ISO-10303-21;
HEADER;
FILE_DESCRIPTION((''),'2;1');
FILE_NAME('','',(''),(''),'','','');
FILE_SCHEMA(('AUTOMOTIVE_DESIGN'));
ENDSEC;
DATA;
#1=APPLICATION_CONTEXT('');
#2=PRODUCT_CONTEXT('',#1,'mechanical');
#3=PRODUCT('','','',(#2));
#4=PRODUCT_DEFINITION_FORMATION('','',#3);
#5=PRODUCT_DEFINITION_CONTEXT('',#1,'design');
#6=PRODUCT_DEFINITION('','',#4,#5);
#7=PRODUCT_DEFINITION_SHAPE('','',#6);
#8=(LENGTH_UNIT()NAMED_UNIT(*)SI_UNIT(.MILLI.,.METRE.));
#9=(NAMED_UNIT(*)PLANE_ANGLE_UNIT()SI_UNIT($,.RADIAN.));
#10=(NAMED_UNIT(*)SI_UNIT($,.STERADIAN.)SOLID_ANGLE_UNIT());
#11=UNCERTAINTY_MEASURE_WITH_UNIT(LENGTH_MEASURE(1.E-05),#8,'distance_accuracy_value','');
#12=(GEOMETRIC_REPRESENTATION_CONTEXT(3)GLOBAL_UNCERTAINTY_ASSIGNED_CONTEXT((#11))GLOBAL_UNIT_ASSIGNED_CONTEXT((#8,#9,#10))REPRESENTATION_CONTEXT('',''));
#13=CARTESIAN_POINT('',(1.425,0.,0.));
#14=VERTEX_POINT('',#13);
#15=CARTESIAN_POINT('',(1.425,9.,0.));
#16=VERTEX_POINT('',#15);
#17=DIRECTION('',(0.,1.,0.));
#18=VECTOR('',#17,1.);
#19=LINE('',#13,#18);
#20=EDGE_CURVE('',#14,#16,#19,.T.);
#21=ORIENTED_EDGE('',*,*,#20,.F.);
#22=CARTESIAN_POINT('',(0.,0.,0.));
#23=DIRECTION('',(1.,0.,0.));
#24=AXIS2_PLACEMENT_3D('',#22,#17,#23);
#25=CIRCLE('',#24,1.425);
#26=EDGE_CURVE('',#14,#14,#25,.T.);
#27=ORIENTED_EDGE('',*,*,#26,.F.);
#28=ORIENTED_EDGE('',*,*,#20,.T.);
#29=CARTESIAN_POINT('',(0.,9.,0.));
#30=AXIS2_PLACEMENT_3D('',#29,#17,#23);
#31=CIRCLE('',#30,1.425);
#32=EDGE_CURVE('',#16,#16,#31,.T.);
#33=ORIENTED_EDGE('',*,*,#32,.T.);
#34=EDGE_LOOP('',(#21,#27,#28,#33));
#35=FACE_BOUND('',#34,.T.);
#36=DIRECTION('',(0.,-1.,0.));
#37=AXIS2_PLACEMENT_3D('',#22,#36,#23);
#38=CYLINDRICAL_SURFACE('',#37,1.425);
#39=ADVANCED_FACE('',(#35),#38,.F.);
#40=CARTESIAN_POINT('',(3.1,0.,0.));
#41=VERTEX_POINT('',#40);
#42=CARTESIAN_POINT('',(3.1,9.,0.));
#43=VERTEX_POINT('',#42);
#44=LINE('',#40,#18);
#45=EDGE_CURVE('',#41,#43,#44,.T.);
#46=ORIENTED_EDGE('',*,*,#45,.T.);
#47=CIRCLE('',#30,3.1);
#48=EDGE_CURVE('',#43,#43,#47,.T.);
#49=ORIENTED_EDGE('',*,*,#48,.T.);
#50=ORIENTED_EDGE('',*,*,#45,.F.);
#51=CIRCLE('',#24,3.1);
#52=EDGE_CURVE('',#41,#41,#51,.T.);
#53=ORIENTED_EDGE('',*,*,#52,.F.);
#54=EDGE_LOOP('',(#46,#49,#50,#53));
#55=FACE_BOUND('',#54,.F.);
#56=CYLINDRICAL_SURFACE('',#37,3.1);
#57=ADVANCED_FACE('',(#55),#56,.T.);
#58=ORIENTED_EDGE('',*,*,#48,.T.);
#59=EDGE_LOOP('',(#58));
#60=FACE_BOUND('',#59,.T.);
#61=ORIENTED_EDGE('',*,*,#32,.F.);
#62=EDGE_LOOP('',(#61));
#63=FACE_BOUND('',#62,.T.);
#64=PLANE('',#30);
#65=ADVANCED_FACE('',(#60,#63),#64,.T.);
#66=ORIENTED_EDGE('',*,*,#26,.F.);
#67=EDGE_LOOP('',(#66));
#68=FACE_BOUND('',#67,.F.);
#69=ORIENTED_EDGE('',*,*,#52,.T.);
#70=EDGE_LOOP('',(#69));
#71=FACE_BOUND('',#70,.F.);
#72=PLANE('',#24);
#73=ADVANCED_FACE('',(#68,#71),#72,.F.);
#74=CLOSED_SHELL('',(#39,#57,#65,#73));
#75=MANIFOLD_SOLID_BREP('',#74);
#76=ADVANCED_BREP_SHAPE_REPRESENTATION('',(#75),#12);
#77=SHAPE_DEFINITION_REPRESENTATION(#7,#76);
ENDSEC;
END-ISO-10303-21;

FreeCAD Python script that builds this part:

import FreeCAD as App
import Part
import Sketcher
from FreeCAD import Vector
Q = App.Units.Quantity

doc = App.newDocument("Part")
params = doc.addObject("Spreadsheet::Sheet", "Params")
for row, (alias, value) in enumerate([
    ("sketch1_diameter", "6.2 mm"),
    ("sketch1_diameter2", "2.85 mm"),
    ("pad1_length", "9 mm"),
], start=1):
    params.set(f"A{row}", alias)
    params.set(f"B{row}", "=" + value)
    params.setAlias(f"B{row}", alias)

body = doc.addObject("PartDesign::Body", "Body")

# Sketch on XZ plane
sketch1 = body.newObject("Sketcher::SketchObject", "Sketch")
sketch1.AttachmentSupport = (doc.getObject("XZ_Plane"), [""])
sketch1.MapMode = "FlatFace"
sketch1.addGeometry(Part.Circle(Vector(0, 0, 0), Vector(0, 0, 1), 3.1), False)
sketch1.addGeometry(Part.Circle(Vector(0, 0, 0), Vector(0, 0, 1), 1.4), False)
sketch1.addConstraint(Sketcher.Constraint("Coincident", 0, 3, -1, 1))
sketch1.addConstraint(Sketcher.Constraint("Coincident", 1, 3, -1, 1))
sketch1.addConstraint(Sketcher.Constraint("Diameter", 0, Q("6.2 mm")))
sketch1.addConstraint(Sketcher.Constraint("Diameter", 1, Q("2.85 mm")))
sketch1.setExpression("Constraints[2]", "Params.sketch1_diameter")
sketch1.setExpression("Constraints[3]", "Params.sketch1_diameter2")
pad1 = body.newObject("PartDesign::Pad", "Pad")
pad1.Profile = sketch1
pad1.setExpression("Length", "Params.pad1_length")
pad1.Reversed = True

doc.recompute()
